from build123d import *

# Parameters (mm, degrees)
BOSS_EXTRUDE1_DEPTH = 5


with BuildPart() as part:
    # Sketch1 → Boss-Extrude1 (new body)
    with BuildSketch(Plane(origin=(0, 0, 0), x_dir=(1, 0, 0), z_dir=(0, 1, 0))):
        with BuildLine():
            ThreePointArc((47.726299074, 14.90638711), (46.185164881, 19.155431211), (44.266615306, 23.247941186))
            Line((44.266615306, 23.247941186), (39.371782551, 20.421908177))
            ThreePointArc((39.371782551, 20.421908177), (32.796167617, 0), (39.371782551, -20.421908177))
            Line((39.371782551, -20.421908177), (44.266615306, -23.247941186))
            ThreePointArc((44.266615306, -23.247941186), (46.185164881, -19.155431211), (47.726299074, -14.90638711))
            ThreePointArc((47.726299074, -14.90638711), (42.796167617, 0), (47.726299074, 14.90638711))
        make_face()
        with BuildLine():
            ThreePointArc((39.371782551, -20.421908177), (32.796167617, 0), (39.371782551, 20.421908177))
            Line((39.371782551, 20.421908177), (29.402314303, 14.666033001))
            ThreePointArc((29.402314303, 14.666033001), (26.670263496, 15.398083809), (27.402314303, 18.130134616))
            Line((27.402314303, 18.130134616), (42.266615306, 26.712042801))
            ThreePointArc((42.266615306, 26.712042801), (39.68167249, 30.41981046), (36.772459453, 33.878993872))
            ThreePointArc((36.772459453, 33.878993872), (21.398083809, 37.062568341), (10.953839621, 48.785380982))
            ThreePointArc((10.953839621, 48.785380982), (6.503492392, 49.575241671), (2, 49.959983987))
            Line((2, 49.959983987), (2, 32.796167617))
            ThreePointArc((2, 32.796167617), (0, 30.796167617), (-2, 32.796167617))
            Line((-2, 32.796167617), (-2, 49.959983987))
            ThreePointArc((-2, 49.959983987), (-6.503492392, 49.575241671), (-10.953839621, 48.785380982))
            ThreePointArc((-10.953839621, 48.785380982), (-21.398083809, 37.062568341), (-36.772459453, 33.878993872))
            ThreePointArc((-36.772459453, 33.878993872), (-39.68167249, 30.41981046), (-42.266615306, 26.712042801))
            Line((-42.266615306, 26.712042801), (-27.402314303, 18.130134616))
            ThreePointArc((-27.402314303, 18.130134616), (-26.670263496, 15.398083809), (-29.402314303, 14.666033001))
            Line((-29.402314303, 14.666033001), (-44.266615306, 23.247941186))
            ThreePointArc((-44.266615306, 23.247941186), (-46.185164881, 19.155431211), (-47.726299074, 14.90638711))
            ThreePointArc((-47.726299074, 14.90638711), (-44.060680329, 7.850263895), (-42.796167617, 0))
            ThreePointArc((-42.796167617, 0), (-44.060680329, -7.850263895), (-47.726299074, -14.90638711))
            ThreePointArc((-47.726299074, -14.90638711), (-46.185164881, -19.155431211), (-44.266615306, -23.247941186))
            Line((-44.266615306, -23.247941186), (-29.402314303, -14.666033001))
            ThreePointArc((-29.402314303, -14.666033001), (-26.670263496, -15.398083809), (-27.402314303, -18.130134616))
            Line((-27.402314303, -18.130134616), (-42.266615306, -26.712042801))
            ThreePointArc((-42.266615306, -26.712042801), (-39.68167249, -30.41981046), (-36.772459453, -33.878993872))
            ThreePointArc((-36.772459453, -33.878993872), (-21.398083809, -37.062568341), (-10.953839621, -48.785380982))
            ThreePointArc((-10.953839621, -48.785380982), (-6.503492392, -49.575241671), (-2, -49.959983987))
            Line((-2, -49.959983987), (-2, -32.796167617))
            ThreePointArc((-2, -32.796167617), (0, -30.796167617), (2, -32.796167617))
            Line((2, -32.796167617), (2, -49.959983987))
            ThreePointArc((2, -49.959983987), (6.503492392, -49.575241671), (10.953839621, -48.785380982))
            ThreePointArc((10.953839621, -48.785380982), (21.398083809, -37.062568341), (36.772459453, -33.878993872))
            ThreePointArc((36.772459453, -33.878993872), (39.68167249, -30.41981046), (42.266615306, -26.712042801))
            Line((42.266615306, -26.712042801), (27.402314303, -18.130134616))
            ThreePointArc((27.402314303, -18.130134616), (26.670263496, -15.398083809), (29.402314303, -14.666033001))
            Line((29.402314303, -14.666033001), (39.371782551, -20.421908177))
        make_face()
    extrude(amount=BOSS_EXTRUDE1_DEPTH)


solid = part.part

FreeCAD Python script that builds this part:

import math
import FreeCAD as App
import Part
import Sketcher

V = App.Vector
Q = App.Units.Quantity

doc = App.newDocument("Part")
body = doc.addObject("PartDesign::Body", "Body")

# Sketch on XZ plane
sketch1 = body.newObject("Sketcher::SketchObject", "Sketch")
sketch1.AttachmentSupport = (doc.getObject("XZ_Plane"), [""])
sketch1.MapMode = "FlatFace"
sketch1.addGeometry([
    Part.ArcOfCircle(Part.Circle(V(0, 0, 0), V(0, 0, 1), 50), math.radians(-27.71), math.radians(-17.35)),  # 0
    Part.LineSegment(V(44.3, -23.2, 0), V(39.4, -20.4, 0)),  # 1
    Part.LineSegment(V(39.4, -20.4, 0), V(29.4, -14.7, 0)),  # 2
    Part.ArcOfCircle(Part.Circle(V(28.4, -16.4, 0), V(0, 0, 1), 2), math.radians(60), math.radians(240)),  # 3
    Part.LineSegment(V(27.4, -18.1, 0), V(42.3, -26.7, 0)),  # 4
    Part.ArcOfCircle(Part.Circle(V(0, 0, 0), V(0, 0, 1), 50), math.radians(-42.65), math.radians(-32.29)),  # 5
    Part.ArcOfCircle(Part.Circle(V(33.9, -58.7, 0), V(0, 0, 1), 25), math.radians(83), math.radians(157)),  # 6
    Part.ArcOfCircle(Part.Circle(V(0, 0, 0), V(0, 0, 1), 50), math.radians(-87.71), math.radians(-77.35)),  # 7
    Part.LineSegment(V(2, -50, 0), V(2, -32.8, 0)),  # 8
    Part.ArcOfCircle(Part.Circle(V(0, -32.8, 0), V(0, 0, 1), 2), math.radians(0), math.radians(180)),  # 9
    Part.LineSegment(V(-2, -32.8, 0), V(-2, -50, 0)),  # 10
    Part.ArcOfCircle(Part.Circle(V(0, 0, 0), V(0, 0, 1), 50), math.radians(-102.65), math.radians(-92.29)),  # 11
    Part.ArcOfCircle(Part.Circle(V(-33.9, -58.7, 0), V(0, 0, 1), 25), math.radians(23), math.radians(97)),  # 12
    Part.ArcOfCircle(Part.Circle(V(0, 0, 0), V(0, 0, 1), 50), math.radians(-147.71), math.radians(-137.35)),  # 13
    Part.LineSegment(V(-42.3, -26.7, 0), V(-27.4, -18.1, 0)),  # 14
    Part.ArcOfCircle(Part.Circle(V(-28.4, -16.4, 0), V(0, 0, 1), 2), math.radians(-60), math.radians(120)),  # 15
    Part.LineSegment(V(-29.4, -14.7, 0), V(-44.3, -23.2, 0)),  # 16
    Part.ArcOfCircle(Part.Circle(V(0, 0, 0), V(0, 0, 1), 50), math.radians(-162.65), math.radians(-152.29)),  # 17
    Part.ArcOfCircle(Part.Circle(V(-67.8, 0, 0), V(0, 0, 1), 25), math.radians(-37), math.radians(0)),  # 18
    Part.ArcOfCircle(Part.Circle(V(-67.8, 0, 0), V(0, 0, 1), 25), math.radians(0), math.radians(37)),  # 19
    Part.ArcOfCircle(Part.Circle(V(0, 0, 0), V(0, 0, 1), 50), math.radians(152.29), math.radians(162.65)),  # 20
    Part.LineSegment(V(-44.3, 23.2, 0), V(-29.4, 14.7, 0)),  # 21
    Part.ArcOfCircle(Part.Circle(V(-28.4, 16.4, 0), V(0, 0, 1), 2), math.radians(-120), math.radians(60)),  # 22
    Part.LineSegment(V(-27.4, 18.1, 0), V(-42.3, 26.7, 0)),  # 23
    Part.ArcOfCircle(Part.Circle(V(0, 0, 0), V(0, 0, 1), 50), math.radians(137.35), math.radians(147.71)),  # 24
    Part.ArcOfCircle(Part.Circle(V(-33.9, 58.7, 0), V(0, 0, 1), 25), math.radians(-97), math.radians(-23)),  # 25
    Part.ArcOfCircle(Part.Circle(V(0, 0, 0), V(0, 0, 1), 50), math.radians(92.29), math.radians(102.65)),  # 26
    Part.LineSegment(V(-2, 50, 0), V(-2, 32.8, 0)),  # 27
    Part.ArcOfCircle(Part.Circle(V(0, 32.8, 0), V(0, 0, 1), 2), math.radians(180), math.radians(360)),  # 28
    Part.LineSegment(V(2, 32.8, 0), V(2, 50, 0)),  # 29
    Part.ArcOfCircle(Part.Circle(V(0, 0, 0), V(0, 0, 1), 50), math.radians(77.35), math.radians(87.71)),  # 30
    Part.ArcOfCircle(Part.Circle(V(33.9, 58.7, 0), V(0, 0, 1), 25), math.radians(-157), math.radians(-83)),  # 31
    Part.ArcOfCircle(Part.Circle(V(0, 0, 0), V(0, 0, 1), 50), math.radians(32.29), math.radians(42.65)),  # 32
    Part.LineSegment(V(42.3, 26.7, 0), V(27.4, 18.1, 0)),  # 33
    Part.ArcOfCircle(Part.Circle(V(28.4, 16.4, 0), V(0, 0, 1), 2), math.radians(120), math.radians(300)),  # 34
    Part.LineSegment(V(29.4, 14.7, 0), V(39.4, 20.4, 0)),  # 35
    Part.LineSegment(V(39.4, 20.4, 0), V(44.3, 23.2, 0)),  # 36
    Part.ArcOfCircle(Part.Circle(V(0, 0, 0), V(0, 0, 1), 50), math.radians(17.35), math.radians(27.71)),  # 37
    Part.ArcOfCircle(Part.Circle(V(67.8, 0, 0), V(0, 0, 1), 25), math.radians(143), math.radians(217)),  # 38
], False)
sketch1.addConstraint([
    Sketcher.Constraint("Coincident", 0, 1, 1, 1),
    Sketcher.Constraint("Coincident", 1, 2, 2, 1),
    Sketcher.Constraint("Tangent", 2, 2, 3, 1),
    Sketcher.Constraint("Tangent", 3, 2, 4, 1),
    Sketcher.Constraint("Coincident", 4, 2, 5, 2),
    Sketcher.Constraint("Coincident", 5, 1, 6, 1),
    Sketcher.Constraint("Coincident", 6, 2, 7, 2),
    Sketcher.Constraint("Coincident", 7, 1, 8, 1),
    Sketcher.Constraint("Tangent", 8, 2, 9, 1),
    Sketcher.Constraint("Tangent", 9, 2, 10, 1),
    Sketcher.Constraint("Coincident", 10, 2, 11, 2),
    Sketcher.Constraint("Coincident", 11, 1, 12, 1),
    Sketcher.Constraint("Coincident", 12, 2, 13, 2),
    Sketcher.Constraint("Coincident", 13, 1, 14, 1),
    Sketcher.Constraint("Tangent", 14, 2, 15, 1),
    Sketcher.Constraint("Tangent", 15, 2, 16, 1),
    Sketcher.Constraint("Coincident", 16, 2, 17, 2),
    Sketcher.Constraint("Coincident", 17, 1, 18, 1),
    Sketcher.Constraint("Tangent", 18, 2, 19, 1),
    Sketcher.Constraint("Coincident", 19, 2, 20, 2),
    Sketcher.Constraint("Coincident", 20, 1, 21, 1),
    Sketcher.Constraint("Tangent", 21, 2, 22, 1),
    Sketcher.Constraint("Tangent", 22, 2, 23, 1),
    Sketcher.Constraint("Coincident", 23, 2, 24, 2),
    Sketcher.Constraint("Coincident", 24, 1, 25, 1),
    Sketcher.Constraint("Coincident", 25, 2, 26, 2),
    Sketcher.Constraint("Coincident", 26, 1, 27, 1),
    Sketcher.Constraint("Tangent", 27, 2, 28, 1),
    Sketcher.Constraint("Tangent", 28, 2, 29, 1),
    Sketcher.Constraint("Coincident", 29, 2, 30, 2),
    Sketcher.Constraint("Coincident", 30, 1, 31, 1),
    Sketcher.Constraint("Coincident", 31, 2, 32, 2),
    Sketcher.Constraint("Coincident", 32, 1, 33, 1),
    Sketcher.Constraint("Tangent", 33, 2, 34, 1),
    Sketcher.Constraint("Tangent", 34, 2, 35, 1),
    Sketcher.Constraint("Coincident", 35, 2, 36, 1),
    Sketcher.Constraint("Coincident", 36, 2, 37, 2),
    Sketcher.Constraint("Coincident", 37, 1, 38, 1),
    Sketcher.Constraint("Coincident", 38, 2, 0, 2),
    Sketcher.Constraint("Vertical", 8),
    Sketcher.Constraint("Vertical", 10),
    Sketcher.Constraint("Vertical", 27),
    Sketcher.Constraint("Vertical", 29),
    Sketcher.Constraint("Coincident", 0, 3, -1, 1),
    Sketcher.Constraint("Coincident", 5, 3, -1, 1),
    Sketcher.Constraint("Coincident", 7, 3, -1, 1),
    Sketcher.Constraint("Coincident", 11, 3, -1, 1),
    Sketcher.Constraint("Coincident", 13, 3, -1, 1),
    Sketcher.Constraint("Coincident", 17, 3, -1, 1),
    Sketcher.Constraint("Coincident", 20, 3, -1, 1),
    Sketcher.Constraint("Coincident", 24, 3, -1, 1),
    Sketcher.Constraint("Coincident", 26, 3, -1, 1),
    Sketcher.Constraint("Coincident", 30, 3, -1, 1),
    Sketcher.Constraint("Coincident", 32, 3, -1, 1),
    Sketcher.Constraint("Coincident", 37, 3, -1, 1),
    Sketcher.Constraint("Equal", 0, 5),
    Sketcher.Constraint("Equal", 5, 7),
    Sketcher.Constraint("Equal", 3, 9),
    Sketcher.Constraint("Equal", 7, 11),
    Sketcher.Constraint("Equal", 6, 12),
    Sketcher.Constraint("Equal", 11, 13),
    Sketcher.Constraint("Equal", 9, 15),
    Sketcher.Constraint("Equal", 13, 17),
    Sketcher.Constraint("Equal", 12, 18),
    Sketcher.Constraint("Equal", 18, 19),
    Sketcher.Constraint("Equal", 17, 20),
    Sketcher.Constraint("Equal", 15, 22),
    Sketcher.Constraint("Equal", 20, 24),
    Sketcher.Constraint("Equal", 19, 25),
    Sketcher.Constraint("Equal", 24, 26),
    Sketcher.Constraint("Equal", 22, 28),
    Sketcher.Constraint("Equal", 26, 30),
    Sketcher.Constraint("Equal", 25, 31),
    Sketcher.Constraint("Equal", 30, 32),
    Sketcher.Constraint("Equal", 28, 34),
    Sketcher.Constraint("Equal", 32, 37),
    Sketcher.Constraint("Equal", 31, 38),
    Sketcher.Constraint("Symmetric", 3, 3, 22, 3, -1, 1),
    Sketcher.Constraint("Symmetric", 6, 3, 25, 3, -1, 1),
    Sketcher.Constraint("Symmetric", 9, 3, 28, 3, -1, 1),
    Sketcher.Constraint("Symmetric", 12, 3, 31, 3, -1, 1),
    Sketcher.Constraint("Symmetric", 15, 3, 34, 3, -1, 1),
    Sketcher.Constraint("Symmetric", 18, 3, 38, 3, -1, 1),
    Sketcher.Constraint("Symmetric", 6, 3, 12, 3, -2),
    Sketcher.Constraint("Symmetric", 3, 3, 15, 3, -2),
    Sketcher.Constraint("Symmetric", 1, 2, 35, 2, -1),
    Sketcher.Constraint("PointOnObject", 9, 3, -2),
    Sketcher.Constraint("PointOnObject", 18, 3, -1),
    Sketcher.Constraint("PointOnObject", 18, 2, -1),
    Sketcher.Constraint("Parallel", 1, 2),
    Sketcher.Constraint("Parallel", 2, 4),
    Sketcher.Constraint("Parallel", 14, 16),
    Sketcher.Constraint("Parallel", 4, 21),
    Sketcher.Constraint("Parallel", 21, 23),
    Sketcher.Constraint("Parallel", 16, 33),
    Sketcher.Constraint("Parallel", 33, 35),
    Sketcher.Constraint("Parallel", 35, 36),
    Sketcher.Constraint("Equal", 14, 16),
    Sketcher.Constraint("Radius", 0, 50.0),
    Sketcher.Constraint("Radius", 3, 2.0),
    Sketcher.Constraint("Radius", 6, 25.0),
    Sketcher.Constraint("Angle", 1, Q("150 deg")),
    Sketcher.Constraint("DistanceX", 17, 1, -1, 1, 47.726299),
    Sketcher.Constraint("Distance", 2, 11.51175),
    Sketcher.Constraint("DistanceY", 8, 1, 8, 2, 17.163816),
    Sketcher.Constraint("DistanceY", 1, 2, -1, 1, 20.421908),
    Sketcher.Constraint("DistanceX", -1, 1, 5, 1, 36.772459),
    Sketcher.Constraint("DistanceX", -1, 1, 6, 2, 10.95384),
])
pad1 = body.newObject("PartDesign::Pad", "Pad")
pad1.Profile = sketch1
pad1.Length = 5
pad1.Reversed = True

doc.recompute()
